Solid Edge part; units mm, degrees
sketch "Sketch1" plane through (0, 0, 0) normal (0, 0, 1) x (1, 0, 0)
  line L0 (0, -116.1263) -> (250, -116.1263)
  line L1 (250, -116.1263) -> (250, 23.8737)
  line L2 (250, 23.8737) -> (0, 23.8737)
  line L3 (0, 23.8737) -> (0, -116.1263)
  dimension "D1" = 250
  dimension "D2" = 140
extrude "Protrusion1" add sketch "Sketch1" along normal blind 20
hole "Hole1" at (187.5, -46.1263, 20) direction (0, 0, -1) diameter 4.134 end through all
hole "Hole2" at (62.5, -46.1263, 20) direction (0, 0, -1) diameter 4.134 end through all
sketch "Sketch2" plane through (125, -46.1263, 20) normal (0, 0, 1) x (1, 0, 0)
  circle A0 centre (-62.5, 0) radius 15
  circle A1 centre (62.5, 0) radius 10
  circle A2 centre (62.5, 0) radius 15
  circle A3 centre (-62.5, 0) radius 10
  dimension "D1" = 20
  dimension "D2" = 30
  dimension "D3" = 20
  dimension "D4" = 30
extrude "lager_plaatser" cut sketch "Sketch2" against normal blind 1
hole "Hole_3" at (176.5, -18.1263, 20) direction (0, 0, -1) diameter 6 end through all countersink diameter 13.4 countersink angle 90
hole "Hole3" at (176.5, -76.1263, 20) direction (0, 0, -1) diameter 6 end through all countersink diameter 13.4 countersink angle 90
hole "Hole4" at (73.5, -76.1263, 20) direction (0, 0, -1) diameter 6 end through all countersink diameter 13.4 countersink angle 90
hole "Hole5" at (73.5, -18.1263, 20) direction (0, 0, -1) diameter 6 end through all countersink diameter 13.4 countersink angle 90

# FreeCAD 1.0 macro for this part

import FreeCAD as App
import Part
import Sketcher
from FreeCAD import Vector

doc = App.newDocument("Part")
body = doc.addObject("PartDesign::Body", "Body")

sketch1 = doc.addObject("Sketcher::SketchObject", "Sketch")
body.addObject(sketch1)
sketch1.AttachmentSupport = (doc.XY_Plane, [""])
sketch1.MapMode = "FlatFace"
sketch1.addGeometry([
    Part.LineSegment(Vector(0, 24, 0), Vector(0, -116, 0)),
    Part.LineSegment(Vector(0, -116, 0), Vector(250, -116, 0)),
    Part.LineSegment(Vector(250, -116, 0), Vector(250, 24, 0)),
    Part.LineSegment(Vector(250, 24, 0), Vector(0, 24, 0)),
], False)
sketch1.addConstraint([
    Sketcher.Constraint("Coincident", 0, 2, 1, 1),
    Sketcher.Constraint("Coincident", 1, 2, 2, 1),
    Sketcher.Constraint("Coincident", 2, 2, 3, 1),
    Sketcher.Constraint("Coincident", 3, 2, 0, 1),
    Sketcher.Constraint("Vertical", 0),
    Sketcher.Constraint("Horizontal", 1),
    Sketcher.Constraint("Vertical", 2),
    Sketcher.Constraint("Horizontal", 3),
    Sketcher.Constraint("PointOnObject", 0, 2, -2),
    Sketcher.Constraint("DistanceX", 1, 1, 1, 2, 250.0),
    Sketcher.Constraint("DistanceY", 0, 2, 0, 1, 140.0),
    Sketcher.Constraint("DistanceY", 0, 2, -1, 1, 116.1263),
])
pad1 = doc.addObject("PartDesign::Pad", "Pad")
body.addObject(pad1)
pad1.Profile = sketch1
pad1.Length = 20

sketch2 = doc.addObject("Sketcher::SketchObject", "Sketch001")
body.addObject(sketch2)
sketch2.AttachmentSupport = (doc.XY_Plane, [""])
sketch2.MapMode = "FlatFace"
sketch2.AttachmentOffset = App.Placement(Vector(0, 0, 20), App.Rotation())
sketch2.addGeometry(Part.Circle(Vector(187.5, -46.1, 0), Vector(0, 0, 1), 2.1), False)
sketch2.addConstraint([
    Sketcher.Constraint("Diameter", 0, 4.134),
    Sketcher.Constraint("DistanceX", -1, 1, 0, 3, 187.5),
    Sketcher.Constraint("DistanceY", 0, 3, -1, 1, 46.1263),
])
doc.recompute()
hole = doc.addObject("PartDesign::Hole", "Hole")
body.addObject(hole)
hole.Profile = sketch2
hole.ThreadType = "None"
hole.Diameter = 4.134
hole.DepthType = "ThroughAll"

sketch3 = doc.addObject("Sketcher::SketchObject", "Sketch002")
body.addObject(sketch3)
sketch3.AttachmentSupport = (doc.XY_Plane, [""])
sketch3.MapMode = "FlatFace"
sketch3.AttachmentOffset = App.Placement(Vector(0, 0, 20), App.Rotation())
sketch3.addGeometry(Part.Circle(Vector(62.5, -46.1, 0), Vector(0, 0, 1), 2.1), False)
sketch3.addConstraint([
    Sketcher.Constraint("Diameter", 0, 4.134),
    Sketcher.Constraint("DistanceX", -1, 1, 0, 3, 62.5),
    Sketcher.Constraint("DistanceY", 0, 3, -1, 1, 46.1263),
])
doc.recompute()
hole2 = doc.addObject("PartDesign::Hole", "Hole001")
body.addObject(hole2)
hole2.Profile = sketch3
hole2.ThreadType = "None"
hole2.Diameter = 4.134
hole2.DepthType = "ThroughAll"

sketch4 = doc.addObject("Sketcher::SketchObject", "Sketch003")
body.addObject(sketch4)
sketch4.AttachmentSupport = (doc.XY_Plane, [""])
sketch4.MapMode = "FlatFace"
sketch4.AttachmentOffset = App.Placement(Vector(0, 0, 20), App.Rotation())
sketch4.addGeometry([
    Part.Circle(Vector(62, -46, 0), Vector(0, 0, 1), 15),
    Part.Circle(Vector(62, -46, 0), Vector(0, 0, 1), 10),
    Part.Circle(Vector(188, -46, 0), Vector(0, 0, 1), 15),
    Part.Circle(Vector(188, -46, 0), Vector(0, 0, 1), 10),
], False)
sketch4.addConstraint([
    Sketcher.Constraint("Coincident", 1, 3, 0, 3),
    Sketcher.Constraint("Coincident", 3, 3, 2, 3),
    Sketcher.Constraint("Equal", 0, 2),
    Sketcher.Constraint("Equal", 1, 3),
    Sketcher.Constraint("Horizontal", 1, 3, 2, 3),
    Sketcher.Constraint("Diameter", 0, 30.0),
    Sketcher.Constraint("Diameter", 1, 20.0),
    Sketcher.Constraint("DistanceX", 0, 3, 2, 3, 125.0),
    Sketcher.Constraint("DistanceX", -1, 1, 0, 3, 62.5),
    Sketcher.Constraint("DistanceY", 0, 3, -1, 1, 46.1263),
])
pocket1 = doc.addObject("PartDesign::Pocket", "Pocket")
body.addObject(pocket1)
pocket1.Profile = sketch4
pocket1.Length = 1

sketch5 = doc.addObject("Sketcher::SketchObject", "Sketch004")
body.addObject(sketch5)
sketch5.AttachmentSupport = (doc.XY_Plane, [""])
sketch5.MapMode = "FlatFace"
sketch5.AttachmentOffset = App.Placement(Vector(0, 0, 20), App.Rotation())
sketch5.addGeometry(Part.Circle(Vector(176.5, -18.1, 0), Vector(0, 0, 1), 3), False)
sketch5.addConstraint([
    Sketcher.Constraint("Diameter", 0, 6.0),
    Sketcher.Constraint("DistanceX", -1, 1, 0, 3, 176.5),
    Sketcher.Constraint("DistanceY", 0, 3, -1, 1, 18.1263),
])
doc.recompute()
hole3 = doc.addObject("PartDesign::Hole", "Hole002")
body.addObject(hole3)
hole3.Profile = sketch5
hole3.ThreadType = "None"
hole3.Diameter = 6
hole3.DepthType = "ThroughAll"
hole3.HoleCutType = "Countersink"
hole3.HoleCutDiameter = 13.4
hole3.HoleCutCountersinkAngle = 90

sketch6 = doc.addObject("Sketcher::SketchObject", "Sketch005")
body.addObject(sketch6)
sketch6.AttachmentSupport = (doc.XY_Plane, [""])
sketch6.MapMode = "FlatFace"
sketch6.AttachmentOffset = App.Placement(Vector(0, 0, 20), App.Rotation())
sketch6.addGeometry(Part.Circle(Vector(176.5, -76.1, 0), Vector(0, 0, 1), 3), False)
sketch6.addConstraint([
    Sketcher.Constraint("Diameter", 0, 6.0),
    Sketcher.Constraint("DistanceX", -1, 1, 0, 3, 176.5),
    Sketcher.Constraint("DistanceY", 0, 3, -1, 1, 76.1263),
])
doc.recompute()
hole4 = doc.addObject("PartDesign::Hole", "Hole003")
body.addObject(hole4)
hole4.Profile = sketch6
hole4.ThreadType = "None"
hole4.Diameter = 6
hole4.DepthType = "ThroughAll"
hole4.HoleCutType = "Countersink"
hole4.HoleCutDiameter = 13.4
hole4.HoleCutCountersinkAngle = 90

sketch7 = doc.addObject("Sketcher::SketchObject", "Sketch006")
body.addObject(sketch7)
sketch7.AttachmentSupport = (doc.XY_Plane, [""])
sketch7.MapMode = "FlatFace"
sketch7.AttachmentOffset = App.Placement(Vector(0, 0, 20), App.Rotation())
sketch7.addGeometry(Part.Circle(Vector(73.5, -76.1, 0), Vector(0, 0, 1), 3), False)
sketch7.addConstraint([
    Sketcher.Constraint("Diameter", 0, 6.0),
    Sketcher.Constraint("DistanceX", -1, 1, 0, 3, 73.5),
    Sketcher.Constraint("DistanceY", 0, 3, -1, 1, 76.1263),
])
doc.recompute()
hole5 = doc.addObject("PartDesign::Hole", "Hole004")
body.addObject(hole5)
hole5.Profile = sketch7
hole5.ThreadType = "None"
hole5.Diameter = 6
hole5.DepthType = "ThroughAll"
hole5.HoleCutType = "Countersink"
hole5.HoleCutDiameter = 13.4
hole5.HoleCutCountersinkAngle = 90

sketch8 = doc.addObject("Sketcher::SketchObject", "Sketch007")
body.addObject(sketch8)
sketch8.AttachmentSupport = (doc.XY_Plane, [""])
sketch8.MapMode = "FlatFace"
sketch8.AttachmentOffset = App.Placement(Vector(0, 0, 20), App.Rotation())
sketch8.addGeometry(Part.Circle(Vector(73.5, -18.1, 0), Vector(0, 0, 1), 3), False)
sketch8.addConstraint([
    Sketcher.Constraint("Diameter", 0, 6.0),
    Sketcher.Constraint("DistanceX", -1, 1, 0, 3, 73.5),
    Sketcher.Constraint("DistanceY", 0, 3, -1, 1, 18.1263),
])
doc.recompute()
hole6 = doc.addObject("PartDesign::Hole", "Hole005")
body.addObject(hole6)
hole6.Profile = sketch8
hole6.ThreadType = "None"
hole6.Diameter = 6
hole6.DepthType = "ThroughAll"
hole6.HoleCutType = "Countersink"
hole6.HoleCutDiameter = 13.4
hole6.HoleCutCountersinkAngle = 90

doc.recompute()
